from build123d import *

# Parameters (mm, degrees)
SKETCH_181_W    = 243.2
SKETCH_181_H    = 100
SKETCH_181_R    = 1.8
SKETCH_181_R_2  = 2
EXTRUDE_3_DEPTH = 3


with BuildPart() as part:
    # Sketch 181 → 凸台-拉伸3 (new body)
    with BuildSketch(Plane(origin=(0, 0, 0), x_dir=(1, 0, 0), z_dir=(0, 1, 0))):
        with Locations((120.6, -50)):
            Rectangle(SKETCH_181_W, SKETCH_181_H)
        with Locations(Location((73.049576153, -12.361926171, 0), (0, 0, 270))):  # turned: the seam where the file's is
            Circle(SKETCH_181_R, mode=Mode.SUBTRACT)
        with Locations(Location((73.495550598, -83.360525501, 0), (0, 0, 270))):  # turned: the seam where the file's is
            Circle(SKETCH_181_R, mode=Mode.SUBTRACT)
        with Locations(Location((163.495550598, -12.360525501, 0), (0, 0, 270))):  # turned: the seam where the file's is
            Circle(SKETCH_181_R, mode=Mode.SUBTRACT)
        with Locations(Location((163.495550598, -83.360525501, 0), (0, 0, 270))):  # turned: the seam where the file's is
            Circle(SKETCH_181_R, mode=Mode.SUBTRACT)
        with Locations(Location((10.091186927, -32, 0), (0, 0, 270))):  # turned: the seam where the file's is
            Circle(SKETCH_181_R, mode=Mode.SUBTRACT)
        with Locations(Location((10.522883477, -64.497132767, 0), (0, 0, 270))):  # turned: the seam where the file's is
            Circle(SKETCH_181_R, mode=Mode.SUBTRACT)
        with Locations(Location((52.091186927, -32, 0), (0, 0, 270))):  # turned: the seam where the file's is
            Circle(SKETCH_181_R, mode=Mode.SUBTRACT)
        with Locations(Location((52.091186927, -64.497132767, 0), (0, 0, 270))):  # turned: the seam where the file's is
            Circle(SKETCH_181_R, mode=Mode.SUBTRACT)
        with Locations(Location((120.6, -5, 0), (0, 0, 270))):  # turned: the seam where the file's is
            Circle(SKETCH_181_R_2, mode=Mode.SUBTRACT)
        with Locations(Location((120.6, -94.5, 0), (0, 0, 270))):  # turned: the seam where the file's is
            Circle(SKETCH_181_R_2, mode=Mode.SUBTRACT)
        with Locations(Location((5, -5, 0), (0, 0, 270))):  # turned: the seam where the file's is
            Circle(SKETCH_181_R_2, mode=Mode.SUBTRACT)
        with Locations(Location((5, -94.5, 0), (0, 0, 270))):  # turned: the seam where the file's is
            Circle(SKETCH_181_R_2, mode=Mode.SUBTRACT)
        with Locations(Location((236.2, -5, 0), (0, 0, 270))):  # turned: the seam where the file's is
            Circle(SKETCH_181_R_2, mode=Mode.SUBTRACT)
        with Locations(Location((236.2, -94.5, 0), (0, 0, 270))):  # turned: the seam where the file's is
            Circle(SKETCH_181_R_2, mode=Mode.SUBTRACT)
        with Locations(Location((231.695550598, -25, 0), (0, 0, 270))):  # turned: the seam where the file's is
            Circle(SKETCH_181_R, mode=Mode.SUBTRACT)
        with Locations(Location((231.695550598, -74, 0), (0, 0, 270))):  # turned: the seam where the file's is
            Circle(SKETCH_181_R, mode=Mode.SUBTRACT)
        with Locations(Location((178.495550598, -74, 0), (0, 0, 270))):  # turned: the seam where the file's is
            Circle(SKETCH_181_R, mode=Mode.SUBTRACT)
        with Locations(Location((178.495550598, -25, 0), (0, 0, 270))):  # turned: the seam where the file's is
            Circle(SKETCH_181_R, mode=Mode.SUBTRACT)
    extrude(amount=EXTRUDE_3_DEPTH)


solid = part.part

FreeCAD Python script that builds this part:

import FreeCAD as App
import Part
import Sketcher
Q = App.Units.Quantity


def add_polygon(sketch, points):
    """Adds a closed chain of lines whose ends are joined by coincident constraints."""
    first, n = sketch.GeometryCount, len(points)
    for a, b in zip(points, points[1:] + points[:1]):
        sketch.addGeometry(Part.LineSegment(App.Vector(*a, 0), App.Vector(*b, 0)), False)
    for i in range(n):
        sketch.addConstraint(Sketcher.Constraint("Coincident", first + i, 2, first + (i + 1) % n, 1))

doc = App.newDocument("Part")
body = doc.addObject("PartDesign::Body", "Body")

# Sketch on XZ plane
sketch1 = body.newObject("Sketcher::SketchObject", "Sketch")
sketch1.AttachmentSupport = (doc.getObject("XZ_Plane"), [""])
sketch1.MapMode = "FlatFace"
add_polygon(sketch1, [(-1, 0), (-1, 100), (242.2, 100), (242.2, 0)])  # lines 0-3
sketch1.addGeometry(Part.Circle(App.Vector(5, 94.5, 0), App.Vector(0, 0, 1), 2), False)  # 4
sketch1.addGeometry(Part.Circle(App.Vector(73.5, 83.4, 0), App.Vector(0, 0, 1), 1.8), False)  # 5
sketch1.addGeometry(Part.Circle(App.Vector(10.5, 64.5, 0), App.Vector(0, 0, 1), 1.8), False)  # 6
sketch1.addGeometry(Part.Circle(App.Vector(52.1, 64.5, 0), App.Vector(0, 0, 1), 1.8), False)  # 7
sketch1.addGeometry(Part.Circle(App.Vector(120.6, 94.5, 0), App.Vector(0, 0, 1), 2), False)  # 8
sketch1.addGeometry(Part.Circle(App.Vector(163.5, 83.4, 0), App.Vector(0, 0, 1), 1.8), False)  # 9
sketch1.addGeometry(Part.Circle(App.Vector(178.5, 74, 0), App.Vector(0, 0, 1), 1.8), False)  # 10
sketch1.addGeometry(Part.Circle(App.Vector(236.2, 94.5, 0), App.Vector(0, 0, 1), 2), False)  # 11
sketch1.addGeometry(Part.Circle(App.Vector(231.7, 74, 0), App.Vector(0, 0, 1), 1.8), False)  # 12
sketch1.addGeometry(Part.Circle(App.Vector(10.1, 32, 0), App.Vector(0, 0, 1), 1.8), False)  # 13
sketch1.addGeometry(Part.Circle(App.Vector(52.1, 32, 0), App.Vector(0, 0, 1), 1.8), False)  # 14
sketch1.addGeometry(Part.Circle(App.Vector(5, 5, 0), App.Vector(0, 0, 1), 2), False)  # 15
sketch1.addGeometry(Part.Circle(App.Vector(73, 12.4, 0), App.Vector(0, 0, 1), 1.8), False)  # 16
sketch1.addGeometry(Part.Circle(App.Vector(178.5, 25, 0), App.Vector(0, 0, 1), 1.8), False)  # 17
sketch1.addGeometry(Part.Circle(App.Vector(120.6, 5, 0), App.Vector(0, 0, 1), 2), False)  # 18
sketch1.addGeometry(Part.Circle(App.Vector(163.5, 12.4, 0), App.Vector(0, 0, 1), 1.8), False)  # 19
sketch1.addGeometry(Part.Circle(App.Vector(231.7, 25, 0), App.Vector(0, 0, 1), 1.8), False)  # 20
sketch1.addGeometry(Part.Circle(App.Vector(236.2, 5, 0), App.Vector(0, 0, 1), 2), False)  # 21
sketch1.addConstraint([
    Sketcher.Constraint("Vertical", 0),
    Sketcher.Constraint("Horizontal", 1),
    Sketcher.Constraint("Vertical", 2),
    Sketcher.Constraint("Horizontal", 3),
    Sketcher.Constraint("Equal", 5, 6),
    Sketcher.Constraint("Equal", 6, 7),
    Sketcher.Constraint("Equal", 4, 8),
    Sketcher.Constraint("Equal", 7, 9),
    Sketcher.Constraint("Equal", 9, 10),
    Sketcher.Constraint("Equal", 8, 11),
    Sketcher.Constraint("Equal", 10, 12),
    Sketcher.Constraint("Equal", 12, 13),
    Sketcher.Constraint("Equal", 13, 14),
    Sketcher.Constraint("Equal", 11, 15),
    Sketcher.Constraint("Equal", 14, 16),
    Sketcher.Constraint("Equal", 16, 17),
    Sketcher.Constraint("Equal", 15, 18),
    Sketcher.Constraint("Equal", 17, 19),
    Sketcher.Constraint("Equal", 19, 20),
    Sketcher.Constraint("Equal", 18, 21),
    Sketcher.Constraint("PointOnObject", 2, 2, -1),
    Sketcher.Constraint("Horizontal", 6, 3, 7, 3),
    Sketcher.Constraint("Horizontal", 4, 3, 8, 3),
    Sketcher.Constraint("Horizontal", 5, 3, 9, 3),
    Sketcher.Constraint("Horizontal", 8, 3, 11, 3),
    Sketcher.Constraint("Horizontal", 10, 3, 12, 3),
    Sketcher.Constraint("Horizontal", 13, 3, 14, 3),
    Sketcher.Constraint("Horizontal", 15, 3, 18, 3),
    Sketcher.Constraint("Horizontal", 17, 3, 20, 3),
    Sketcher.Constraint("Horizontal", 18, 3, 21, 3),
    Sketcher.Constraint("Vertical", 7, 3, 14, 3),
    Sketcher.Constraint("Vertical", 4, 3, 15, 3),
    Sketcher.Constraint("Vertical", 10, 3, 17, 3),
    Sketcher.Constraint("Vertical", 8, 3, 18, 3),
    Sketcher.Constraint("Vertical", 9, 3, 19, 3),
    Sketcher.Constraint("Vertical", 12, 3, 20, 3),
    Sketcher.Constraint("Vertical", 11, 3, 21, 3),
    Sketcher.Constraint("Diameter", 4, Q("4 mm")),
    Sketcher.Constraint("Diameter", 5, Q("3.6 mm")),
    Sketcher.Constraint("DistanceY", 0, 1, 0, 2, Q("100 mm")),
    Sketcher.Constraint("DistanceX", 1, 1, 1, 2, Q("243.2 mm")),
    Sketcher.Constraint("DistanceX", -1, 1, 4, 3, Q("5 mm")),
    Sketcher.Constraint("DistanceY", -1, 1, 10, 3, Q("74 mm")),
    Sketcher.Constraint("DistanceY", -1, 1, 13, 3, Q("32 mm")),
    Sketcher.Constraint("DistanceY", -1, 1, 15, 3, Q("5 mm")),
    Sketcher.Constraint("DistanceY", -1, 1, 17, 3, Q("25 mm")),
    Sketcher.Constraint("DistanceX", 0, 2, -1, 1, Q("1 mm")),
    Sketcher.Constraint("DistanceX", 5, 3, 9, 3, Q("90 mm")),
    Sketcher.Constraint("DistanceX", 9, 3, 10, 3, Q("15 mm")),
    Sketcher.Constraint("DistanceX", 13, 3, 7, 3, Q("42 mm")),
    Sketcher.Constraint("DistanceY", 19, 3, 9, 3, Q("71 mm")),
    Sketcher.Constraint("DistanceX", 11, 3, 1, 2, Q("6 mm")),
    Sketcher.Constraint("DistanceY", -1, 1, 4, 3, Q("94.5 mm")),
    Sketcher.Constraint("DistanceX", -1, 1, 8, 3, Q("120.6 mm")),
    Sketcher.Constraint("DistanceX", 10, 3, 12, 3, Q("53.2 mm")),
    Sketcher.Constraint("DistanceY", 16, 3, 5, 3, Q("70.998599 mm")),
    Sketcher.Constraint("DistanceX", -1, 1, 5, 3, Q("73.495551 mm")),
    Sketcher.Constraint("DistanceX", 14, 3, 16, 3, Q("20.958389 mm")),
    Sketcher.Constraint("DistanceY", -1, 1, 5, 3, Q("83.360526 mm")),
    Sketcher.Constraint("DistanceX", -1, 1, 6, 3, Q("10.522883 mm")),
    Sketcher.Constraint("DistanceY", -1, 1, 6, 3, Q("64.497133 mm")),
    Sketcher.Constraint("DistanceX", -1, 1, 7, 3, Q("52.091187 mm")),
])
pad1 = body.newObject("PartDesign::Pad", "Pad")
pad1.Profile = sketch1
pad1.Length = 3
pad1.Reversed = True

doc.recompute()
